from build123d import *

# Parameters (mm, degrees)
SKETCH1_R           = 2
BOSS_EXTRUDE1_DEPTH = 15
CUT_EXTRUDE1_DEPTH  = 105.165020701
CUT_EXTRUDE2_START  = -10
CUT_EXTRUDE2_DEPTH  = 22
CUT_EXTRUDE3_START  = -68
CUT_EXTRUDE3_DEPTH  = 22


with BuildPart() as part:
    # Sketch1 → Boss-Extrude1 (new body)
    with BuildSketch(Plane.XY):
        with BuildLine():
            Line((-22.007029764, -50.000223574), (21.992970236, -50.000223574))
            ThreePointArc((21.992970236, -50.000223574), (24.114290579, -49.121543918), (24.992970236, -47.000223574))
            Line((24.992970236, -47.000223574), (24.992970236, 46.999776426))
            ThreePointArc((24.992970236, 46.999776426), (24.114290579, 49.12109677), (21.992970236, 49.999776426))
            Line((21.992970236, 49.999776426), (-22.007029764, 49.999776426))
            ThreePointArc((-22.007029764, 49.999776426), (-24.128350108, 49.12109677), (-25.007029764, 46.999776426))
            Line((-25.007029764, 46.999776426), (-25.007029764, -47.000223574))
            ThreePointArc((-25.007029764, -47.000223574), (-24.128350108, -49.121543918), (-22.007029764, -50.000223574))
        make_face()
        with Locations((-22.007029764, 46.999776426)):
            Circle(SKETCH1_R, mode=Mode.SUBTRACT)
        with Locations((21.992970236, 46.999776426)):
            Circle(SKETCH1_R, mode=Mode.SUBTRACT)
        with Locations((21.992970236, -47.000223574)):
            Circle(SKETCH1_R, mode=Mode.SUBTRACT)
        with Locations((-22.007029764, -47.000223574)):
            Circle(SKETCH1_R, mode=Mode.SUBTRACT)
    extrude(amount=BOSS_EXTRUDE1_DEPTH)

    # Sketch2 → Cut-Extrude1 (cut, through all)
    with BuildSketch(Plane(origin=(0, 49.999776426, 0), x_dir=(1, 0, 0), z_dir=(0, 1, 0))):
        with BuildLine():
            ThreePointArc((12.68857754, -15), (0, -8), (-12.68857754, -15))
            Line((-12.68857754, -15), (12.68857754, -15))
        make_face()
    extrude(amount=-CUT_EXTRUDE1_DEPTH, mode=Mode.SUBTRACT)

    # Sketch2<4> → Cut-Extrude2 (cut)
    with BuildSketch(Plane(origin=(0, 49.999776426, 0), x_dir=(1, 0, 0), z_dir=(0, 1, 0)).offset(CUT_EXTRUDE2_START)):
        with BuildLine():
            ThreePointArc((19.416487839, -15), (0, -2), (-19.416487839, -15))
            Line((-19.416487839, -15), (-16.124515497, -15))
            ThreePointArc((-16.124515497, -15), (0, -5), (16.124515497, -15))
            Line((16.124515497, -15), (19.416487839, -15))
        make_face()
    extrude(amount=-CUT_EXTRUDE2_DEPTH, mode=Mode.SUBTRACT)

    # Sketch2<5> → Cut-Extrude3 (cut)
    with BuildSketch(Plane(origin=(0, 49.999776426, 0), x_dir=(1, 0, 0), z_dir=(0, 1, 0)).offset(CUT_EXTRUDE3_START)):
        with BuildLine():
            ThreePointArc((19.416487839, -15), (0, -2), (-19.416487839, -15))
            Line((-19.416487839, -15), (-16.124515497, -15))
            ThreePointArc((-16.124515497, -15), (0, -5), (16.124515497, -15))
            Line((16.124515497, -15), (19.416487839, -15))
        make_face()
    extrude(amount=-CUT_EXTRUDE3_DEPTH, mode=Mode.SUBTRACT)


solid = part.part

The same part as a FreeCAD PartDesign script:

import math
import FreeCAD as App
import Part
import Sketcher
from FreeCAD import Vector

doc = App.newDocument("Part")
body = doc.addObject("PartDesign::Body", "Body")

# Sketch on XY plane
sketch1 = body.newObject("Sketcher::SketchObject", "Sketch")
sketch1.AttachmentSupport = (doc.getObject("XY_Plane"), [""])
sketch1.MapMode = "FlatFace"
sketch1.addGeometry(Part.LineSegment(Vector(-22.00703, -50.000224, 0), Vector(21.99297, -50.000224, 0)), False)
sketch1.addGeometry(Part.ArcOfCircle(Part.Circle(Vector(21.99297, -47.000224, 0), Vector(0, 0, 1), 3), math.radians(-90), math.radians(0)), False)
sketch1.addGeometry(Part.LineSegment(Vector(24.99297, -47.000224, 0), Vector(24.99297, 46.999776, 0)), False)
sketch1.addGeometry(Part.ArcOfCircle(Part.Circle(Vector(21.99297, 46.999776, 0), Vector(0, 0, 1), 3), math.radians(0), math.radians(90)), False)
sketch1.addGeometry(Part.LineSegment(Vector(21.99297, 49.999776, 0), Vector(-22.00703, 49.999776, 0)), False)
sketch1.addGeometry(Part.ArcOfCircle(Part.Circle(Vector(-22.00703, 46.999776, 0), Vector(0, 0, 1), 3), math.radians(90), math.radians(180)), False)
sketch1.addGeometry(Part.LineSegment(Vector(-25.00703, 46.999776, 0), Vector(-25.00703, -47.000224, 0)), False)
sketch1.addGeometry(Part.ArcOfCircle(Part.Circle(Vector(-22.00703, -47.000224, 0), Vector(0, 0, 1), 3), math.radians(180), math.radians(270)), False)
sketch1.addGeometry(Part.Circle(Vector(-22.00703, -47.000224, 0), Vector(0, 0, 1), 2), False)
sketch1.addGeometry(Part.Circle(Vector(21.99297, -47.000224, 0), Vector(0, 0, 1), 2), False)
sketch1.addGeometry(Part.Circle(Vector(-22.00703, 46.999776, 0), Vector(0, 0, 1), 2), False)
sketch1.addGeometry(Part.Circle(Vector(21.99297, 46.999776, 0), Vector(0, 0, 1), 2), False)
sketch1.addConstraint(Sketcher.Constraint("Tangent", 0, 2, 1, 1))
sketch1.addConstraint(Sketcher.Constraint("Tangent", 1, 2, 2, 1))
sketch1.addConstraint(Sketcher.Constraint("Tangent", 2, 2, 3, 1))
sketch1.addConstraint(Sketcher.Constraint("Tangent", 3, 2, 4, 1))
sketch1.addConstraint(Sketcher.Constraint("Tangent", 4, 2, 5, 1))
sketch1.addConstraint(Sketcher.Constraint("Tangent", 5, 2, 6, 1))
sketch1.addConstraint(Sketcher.Constraint("Tangent", 6, 2, 7, 1))
sketch1.addConstraint(Sketcher.Constraint("Tangent", 7, 2, 0, 1))
sketch1.addConstraint(Sketcher.Constraint("Horizontal", 0))
sketch1.addConstraint(Sketcher.Constraint("Vertical", 2))
sketch1.addConstraint(Sketcher.Constraint("Horizontal", 4))
sketch1.addConstraint(Sketcher.Constraint("Vertical", 6))
sketch1.addConstraint(Sketcher.Constraint("Coincident", 8, 3, 7, 3))
sketch1.addConstraint(Sketcher.Constraint("Coincident", 9, 3, 1, 3))
sketch1.addConstraint(Sketcher.Constraint("Coincident", 10, 3, 5, 3))
sketch1.addConstraint(Sketcher.Constraint("Coincident", 11, 3, 3, 3))
sketch1.addConstraint(Sketcher.Constraint("Equal", 1, 3))
sketch1.addConstraint(Sketcher.Constraint("Equal", 3, 5))
sketch1.addConstraint(Sketcher.Constraint("Equal", 5, 7))
sketch1.addConstraint(Sketcher.Constraint("Equal", 8, 9))
sketch1.addConstraint(Sketcher.Constraint("Equal", 9, 10))
sketch1.addConstraint(Sketcher.Constraint("Equal", 10, 11))
sketch1.addConstraint(Sketcher.Constraint("Diameter", 8, 4.0))
sketch1.addConstraint(Sketcher.Constraint("Radius", 1, 3.0))
sketch1.addConstraint(Sketcher.Constraint("DistanceX", 0, 1, 0, 2, 44.0))
sketch1.addConstraint(Sketcher.Constraint("DistanceY", 2, 1, 2, 2, 94.0))
sketch1.addConstraint(Sketcher.Constraint("DistanceX", -1, 1, 1, 3, 21.99297))
sketch1.addConstraint(Sketcher.Constraint("DistanceY", 1, 3, -1, 1, 47.000224))
pad1 = body.newObject("PartDesign::Pad", "Pad")
pad1.Profile = sketch1
pad1.Length = 15

# Sketch on XZ plane
sketch2 = body.newObject("Sketcher::SketchObject", "Sketch001")
sketch2.AttachmentSupport = (doc.getObject("XZ_Plane"), [""])
sketch2.MapMode = "FlatFace"
sketch2.AttachmentOffset = App.Placement(Vector(0, 0, -49.999776), App.Rotation())
sketch2.addGeometry(Part.ArcOfCircle(Part.Circle(Vector(0, 23, 0), Vector(0, 0, 1), 15), math.radians(-147.769047), math.radians(-32.230953)), False)
sketch2.addGeometry(Part.LineSegment(Vector(-12.688578, 15, 0), Vector(12.688578, 15, 0)), False)
sketch2.addConstraint(Sketcher.Constraint("Coincident", 0, 1, 1, 1))
sketch2.addConstraint(Sketcher.Constraint("Coincident", 1, 2, 0, 2))
sketch2.addConstraint(Sketcher.Constraint("Horizontal", 1))
sketch2.addConstraint(Sketcher.Constraint("PointOnObject", 0, 3, -2))
sketch2.addConstraint(Sketcher.Constraint("Radius", 0, 15.0))
sketch2.addConstraint(Sketcher.Constraint("DistanceY", -1, 1, 0, 3, 23.0))
sketch2.addConstraint(Sketcher.Constraint("DistanceY", -1, 1, 0, 1, 15.0))
pocket1 = body.newObject("PartDesign::Pocket", "Pocket")
pocket1.Profile = sketch2
pocket1.Type = "ThroughAll"
pocket1.Reversed = True

# Sketch on XZ plane
sketch3 = body.newObject("Sketcher::SketchObject", "Sketch002")
sketch3.AttachmentSupport = (doc.getObject("XZ_Plane"), [""])
sketch3.MapMode = "FlatFace"
sketch3.AttachmentOffset = App.Placement(Vector(0, 0, -39.999776), App.Rotation())
sketch3.addGeometry(Part.ArcOfCircle(Part.Circle(Vector(0, 23, 0), Vector(0, 0, 1), 21), math.radians(-157.607312), math.radians(-22.392688)), False)
sketch3.addGeometry(Part.LineSegment(Vector(-19.416488, 15, 0), Vector(-16.124515, 15, 0)), False)
sketch3.addGeometry(Part.ArcOfCircle(Part.Circle(Vector(0, 23, 0), Vector(0, 0, 1), 18), math.radians(-153.6122), math.radians(-26.3878)), False)
sketch3.addGeometry(Part.LineSegment(Vector(16.124515, 15, 0), Vector(19.416488, 15, 0)), False)
sketch3.addConstraint(Sketcher.Constraint("Coincident", 0, 1, 1, 1))
sketch3.addConstraint(Sketcher.Constraint("Coincident", 1, 2, 2, 1))
sketch3.addConstraint(Sketcher.Constraint("Coincident", 2, 2, 3, 1))
sketch3.addConstraint(Sketcher.Constraint("Coincident", 3, 2, 0, 2))
sketch3.addConstraint(Sketcher.Constraint("Horizontal", 1))
sketch3.addConstraint(Sketcher.Constraint("Horizontal", 3))
sketch3.addConstraint(Sketcher.Constraint("Coincident", 2, 3, 0, 3))
sketch3.addConstraint(Sketcher.Constraint("Symmetric", 1, 2, 2, 2, -2))
sketch3.addConstraint(Sketcher.Constraint("Radius", 0, 21.0))
sketch3.addConstraint(Sketcher.Constraint("Radius", 2, 18.0))
sketch3.addConstraint(Sketcher.Constraint("DistanceY", -1, 1, 0, 3, 23.0))
sketch3.addConstraint(Sketcher.Constraint("DistanceY", -1, 1, 0, 1, 15.0))
pocket2 = body.newObject("PartDesign::Pocket", "Pocket001")
pocket2.Profile = sketch3
pocket2.Length = 22
pocket2.Reversed = True

# Sketch on XZ plane
sketch4 = body.newObject("Sketcher::SketchObject", "Sketch003")
sketch4.AttachmentSupport = (doc.getObject("XZ_Plane"), [""])
sketch4.MapMode = "FlatFace"
sketch4.AttachmentOffset = App.Placement(Vector(0, 0, 18.000224), App.Rotation())
sketch4.addGeometry(Part.ArcOfCircle(Part.Circle(Vector(0, 23, 0), Vector(0, 0, 1), 21), math.radians(-157.607312), math.radians(-22.392688)), False)
sketch4.addGeometry(Part.LineSegment(Vector(-19.416488, 15, 0), Vector(-16.124515, 15, 0)), False)
sketch4.addGeometry(Part.ArcOfCircle(Part.Circle(Vector(0, 23, 0), Vector(0, 0, 1), 18), math.radians(-153.6122), math.radians(-26.3878)), False)
sketch4.addGeometry(Part.LineSegment(Vector(16.124515, 15, 0), Vector(19.416488, 15, 0)), False)
sketch4.addConstraint(Sketcher.Constraint("Coincident", 0, 1, 1, 1))
sketch4.addConstraint(Sketcher.Constraint("Coincident", 1, 2, 2, 1))
sketch4.addConstraint(Sketcher.Constraint("Coincident", 2, 2, 3, 1))
sketch4.addConstraint(Sketcher.Constraint("Coincident", 3, 2, 0, 2))
sketch4.addConstraint(Sketcher.Constraint("Horizontal", 1))
sketch4.addConstraint(Sketcher.Constraint("Horizontal", 3))
sketch4.addConstraint(Sketcher.Constraint("Coincident", 2, 3, 0, 3))
sketch4.addConstraint(Sketcher.Constraint("Symmetric", 1, 2, 2, 2, -2))
sketch4.addConstraint(Sketcher.Constraint("Radius", 0, 21.0))
sketch4.addConstraint(Sketcher.Constraint("Radius", 2, 18.0))
sketch4.addConstraint(Sketcher.Constraint("DistanceY", -1, 1, 0, 3, 23.0))
sketch4.addConstraint(Sketcher.Constraint("DistanceY", -1, 1, 0, 1, 15.0))
pocket3 = body.newObject("PartDesign::Pocket", "Pocket002")
pocket3.Profile = sketch4
pocket3.Length = 22
pocket3.Reversed = True

doc.recompute()
